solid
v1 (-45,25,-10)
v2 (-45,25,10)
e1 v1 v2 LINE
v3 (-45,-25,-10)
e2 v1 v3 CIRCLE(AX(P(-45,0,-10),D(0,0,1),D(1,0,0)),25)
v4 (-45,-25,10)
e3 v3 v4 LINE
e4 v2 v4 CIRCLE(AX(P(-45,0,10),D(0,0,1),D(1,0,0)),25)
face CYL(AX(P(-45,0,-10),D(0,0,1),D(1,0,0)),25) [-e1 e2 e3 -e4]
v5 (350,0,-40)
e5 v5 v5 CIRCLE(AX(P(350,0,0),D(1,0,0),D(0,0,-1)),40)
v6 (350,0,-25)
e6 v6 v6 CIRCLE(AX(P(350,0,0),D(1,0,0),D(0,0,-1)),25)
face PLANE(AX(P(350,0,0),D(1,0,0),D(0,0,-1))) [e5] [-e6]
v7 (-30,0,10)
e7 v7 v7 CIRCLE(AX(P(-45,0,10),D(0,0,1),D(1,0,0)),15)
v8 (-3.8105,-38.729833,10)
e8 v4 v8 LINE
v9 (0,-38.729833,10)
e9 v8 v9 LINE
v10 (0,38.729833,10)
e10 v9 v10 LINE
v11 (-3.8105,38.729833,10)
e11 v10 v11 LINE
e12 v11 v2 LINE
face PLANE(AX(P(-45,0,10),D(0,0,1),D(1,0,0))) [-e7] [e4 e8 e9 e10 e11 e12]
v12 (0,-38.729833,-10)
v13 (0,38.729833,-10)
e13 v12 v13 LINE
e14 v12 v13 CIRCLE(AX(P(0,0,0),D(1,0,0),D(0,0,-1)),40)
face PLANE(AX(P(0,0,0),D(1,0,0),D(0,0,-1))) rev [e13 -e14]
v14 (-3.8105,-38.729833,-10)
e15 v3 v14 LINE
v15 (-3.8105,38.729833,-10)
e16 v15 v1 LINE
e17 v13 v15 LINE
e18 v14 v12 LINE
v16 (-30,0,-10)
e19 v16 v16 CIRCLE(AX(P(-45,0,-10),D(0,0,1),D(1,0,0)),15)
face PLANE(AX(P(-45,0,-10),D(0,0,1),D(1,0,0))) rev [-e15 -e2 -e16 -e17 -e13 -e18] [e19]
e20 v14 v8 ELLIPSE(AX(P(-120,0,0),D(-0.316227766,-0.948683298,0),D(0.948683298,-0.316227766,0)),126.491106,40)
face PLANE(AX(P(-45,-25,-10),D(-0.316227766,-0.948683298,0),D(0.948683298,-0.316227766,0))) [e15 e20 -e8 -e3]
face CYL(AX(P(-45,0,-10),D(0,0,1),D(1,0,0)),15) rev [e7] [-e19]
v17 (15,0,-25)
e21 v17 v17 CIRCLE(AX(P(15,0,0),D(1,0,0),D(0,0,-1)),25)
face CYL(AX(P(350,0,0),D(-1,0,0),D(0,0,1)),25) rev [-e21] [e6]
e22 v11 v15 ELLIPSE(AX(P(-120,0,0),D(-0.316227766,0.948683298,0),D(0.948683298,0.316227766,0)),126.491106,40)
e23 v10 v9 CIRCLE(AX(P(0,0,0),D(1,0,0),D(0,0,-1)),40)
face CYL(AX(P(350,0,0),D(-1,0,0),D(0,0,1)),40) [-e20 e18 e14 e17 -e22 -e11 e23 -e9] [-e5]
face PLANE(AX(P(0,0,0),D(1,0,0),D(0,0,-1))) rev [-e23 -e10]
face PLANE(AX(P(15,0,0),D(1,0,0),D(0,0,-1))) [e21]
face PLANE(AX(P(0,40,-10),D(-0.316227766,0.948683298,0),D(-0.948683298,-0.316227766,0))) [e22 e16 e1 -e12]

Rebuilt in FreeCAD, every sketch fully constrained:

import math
import FreeCAD as App
import Part
import Sketcher
Q = App.Units.Quantity


def faces_at(feature, points):
    """Names of the faces that lie closest to the given points."""
    faces = feature.Shape.Faces
    near = lambda p: min(range(len(faces)), key=lambda i: faces[i].distToShape(Part.Vertex(*p))[0])
    return sorted({f"Face{near(p) + 1}" for p in points})

doc = App.newDocument("Part")
body = doc.addObject("PartDesign::Body", "Body")

sketch1 = body.newObject("Sketcher::SketchObject", "Sketch")
sketch1.AttachmentSupport = (doc.getObject("YZ_Plane"), [""])
sketch1.MapMode = "FlatFace"
sketch1.addGeometry(Part.Circle(App.Vector(0, 0, 0), App.Vector(0, 0, 1), 40), False)
sketch1.addConstraint([
    Sketcher.Constraint("Coincident", 0, 3, -1, 1),
    Sketcher.Constraint("Diameter", 0, Q("80 mm")),
])
pad1 = body.newObject("PartDesign::Pad", "Pad")
pad1.Profile = sketch1
pad1.Length = 350
doc.recompute()

thickness = body.newObject("PartDesign::Thickness", "Thickness")
thickness.Base = (pad1, faces_at(pad1, [(350, 0, 0)]))
thickness.Value = 15
thickness.Reversed = True
thickness.Join = "Intersection"

sketch2 = body.newObject("Sketcher::SketchObject", "Sketch001")
sketch2.AttachmentSupport = (doc.getObject("XY_Plane"), [""])
sketch2.MapMode = "FlatFace"
sketch2.addGeometry([
    Part.LineSegment(App.Vector(0, 40, 0), App.Vector(-45, 25, 0)),
    Part.ArcOfCircle(Part.Circle(App.Vector(-45, 0, 0), App.Vector(0, 0, 1), 25), math.radians(90), math.radians(270)),
    Part.LineSegment(App.Vector(-45, -25, 0), App.Vector(0, -40, 0)),
    Part.LineSegment(App.Vector(0, -40, 0), App.Vector(0, 40, 0)),
    Part.Circle(App.Vector(-45, 0, 0), App.Vector(0, 0, 1), 15),
], False)
sketch2.addConstraint([
    Sketcher.Constraint("Coincident", 0, 2, 1, 1),
    Sketcher.Constraint("Coincident", 1, 2, 2, 1),
    Sketcher.Constraint("Coincident", 2, 2, 3, 1),
    Sketcher.Constraint("Coincident", 3, 2, 0, 1),
    Sketcher.Constraint("Vertical", 3),
    Sketcher.Constraint("Coincident", 4, 3, 1, 3),
    Sketcher.Constraint("Symmetric", 2, 2, 3, 2, -1, 1),
    Sketcher.Constraint("Symmetric", 0, 2, 1, 2, -1),
    Sketcher.Constraint("Vertical", 4, 3, 0, 2),
    Sketcher.Constraint("Diameter", 4, Q("30 mm")),
    Sketcher.Constraint("Radius", 1, Q("25 mm")),
    Sketcher.Constraint("DistanceY", 3, 1, 3, 2, Q("80 mm")),
    Sketcher.Constraint("DistanceX", 1, 3, -1, 1, Q("45 mm")),
])
pad2 = body.newObject("PartDesign::Pad", "Pad001")
pad2.Profile = sketch2
pad2.Type = "TwoLengths"
pad2.Length = 10
pad2.Length2 = 10

sketch3 = body.newObject("Sketcher::SketchObject", "Sketch002")
sketch3.AttachmentSupport = (doc.getObject("YZ_Plane"), [""])
sketch3.MapMode = "FlatFace"
sketch3.AttachmentOffset = App.Placement(App.Vector(0, 0, -68), App.Rotation())
sketch3.addGeometry([
    Part.Circle(App.Vector(0, 0, 0), App.Vector(0, 0, 1), 50.167955),
    Part.Circle(App.Vector(0, 0, 0), App.Vector(0, 0, 1), 40),
], False)
sketch3.addConstraint([
    Sketcher.Constraint("Coincident", 0, 3, -1, 1),
    Sketcher.Constraint("Coincident", 1, 3, -1, 1),
    Sketcher.Constraint("Diameter", 1, Q("80 mm")),
    Sketcher.Constraint("Diameter", 0, Q("100.33591 mm")),
])
pocket1 = body.newObject("PartDesign::Pocket", "Pocket")
pocket1.Profile = sketch3
pocket1.Length = 68
pocket1.Reversed = True

doc.recompute()
